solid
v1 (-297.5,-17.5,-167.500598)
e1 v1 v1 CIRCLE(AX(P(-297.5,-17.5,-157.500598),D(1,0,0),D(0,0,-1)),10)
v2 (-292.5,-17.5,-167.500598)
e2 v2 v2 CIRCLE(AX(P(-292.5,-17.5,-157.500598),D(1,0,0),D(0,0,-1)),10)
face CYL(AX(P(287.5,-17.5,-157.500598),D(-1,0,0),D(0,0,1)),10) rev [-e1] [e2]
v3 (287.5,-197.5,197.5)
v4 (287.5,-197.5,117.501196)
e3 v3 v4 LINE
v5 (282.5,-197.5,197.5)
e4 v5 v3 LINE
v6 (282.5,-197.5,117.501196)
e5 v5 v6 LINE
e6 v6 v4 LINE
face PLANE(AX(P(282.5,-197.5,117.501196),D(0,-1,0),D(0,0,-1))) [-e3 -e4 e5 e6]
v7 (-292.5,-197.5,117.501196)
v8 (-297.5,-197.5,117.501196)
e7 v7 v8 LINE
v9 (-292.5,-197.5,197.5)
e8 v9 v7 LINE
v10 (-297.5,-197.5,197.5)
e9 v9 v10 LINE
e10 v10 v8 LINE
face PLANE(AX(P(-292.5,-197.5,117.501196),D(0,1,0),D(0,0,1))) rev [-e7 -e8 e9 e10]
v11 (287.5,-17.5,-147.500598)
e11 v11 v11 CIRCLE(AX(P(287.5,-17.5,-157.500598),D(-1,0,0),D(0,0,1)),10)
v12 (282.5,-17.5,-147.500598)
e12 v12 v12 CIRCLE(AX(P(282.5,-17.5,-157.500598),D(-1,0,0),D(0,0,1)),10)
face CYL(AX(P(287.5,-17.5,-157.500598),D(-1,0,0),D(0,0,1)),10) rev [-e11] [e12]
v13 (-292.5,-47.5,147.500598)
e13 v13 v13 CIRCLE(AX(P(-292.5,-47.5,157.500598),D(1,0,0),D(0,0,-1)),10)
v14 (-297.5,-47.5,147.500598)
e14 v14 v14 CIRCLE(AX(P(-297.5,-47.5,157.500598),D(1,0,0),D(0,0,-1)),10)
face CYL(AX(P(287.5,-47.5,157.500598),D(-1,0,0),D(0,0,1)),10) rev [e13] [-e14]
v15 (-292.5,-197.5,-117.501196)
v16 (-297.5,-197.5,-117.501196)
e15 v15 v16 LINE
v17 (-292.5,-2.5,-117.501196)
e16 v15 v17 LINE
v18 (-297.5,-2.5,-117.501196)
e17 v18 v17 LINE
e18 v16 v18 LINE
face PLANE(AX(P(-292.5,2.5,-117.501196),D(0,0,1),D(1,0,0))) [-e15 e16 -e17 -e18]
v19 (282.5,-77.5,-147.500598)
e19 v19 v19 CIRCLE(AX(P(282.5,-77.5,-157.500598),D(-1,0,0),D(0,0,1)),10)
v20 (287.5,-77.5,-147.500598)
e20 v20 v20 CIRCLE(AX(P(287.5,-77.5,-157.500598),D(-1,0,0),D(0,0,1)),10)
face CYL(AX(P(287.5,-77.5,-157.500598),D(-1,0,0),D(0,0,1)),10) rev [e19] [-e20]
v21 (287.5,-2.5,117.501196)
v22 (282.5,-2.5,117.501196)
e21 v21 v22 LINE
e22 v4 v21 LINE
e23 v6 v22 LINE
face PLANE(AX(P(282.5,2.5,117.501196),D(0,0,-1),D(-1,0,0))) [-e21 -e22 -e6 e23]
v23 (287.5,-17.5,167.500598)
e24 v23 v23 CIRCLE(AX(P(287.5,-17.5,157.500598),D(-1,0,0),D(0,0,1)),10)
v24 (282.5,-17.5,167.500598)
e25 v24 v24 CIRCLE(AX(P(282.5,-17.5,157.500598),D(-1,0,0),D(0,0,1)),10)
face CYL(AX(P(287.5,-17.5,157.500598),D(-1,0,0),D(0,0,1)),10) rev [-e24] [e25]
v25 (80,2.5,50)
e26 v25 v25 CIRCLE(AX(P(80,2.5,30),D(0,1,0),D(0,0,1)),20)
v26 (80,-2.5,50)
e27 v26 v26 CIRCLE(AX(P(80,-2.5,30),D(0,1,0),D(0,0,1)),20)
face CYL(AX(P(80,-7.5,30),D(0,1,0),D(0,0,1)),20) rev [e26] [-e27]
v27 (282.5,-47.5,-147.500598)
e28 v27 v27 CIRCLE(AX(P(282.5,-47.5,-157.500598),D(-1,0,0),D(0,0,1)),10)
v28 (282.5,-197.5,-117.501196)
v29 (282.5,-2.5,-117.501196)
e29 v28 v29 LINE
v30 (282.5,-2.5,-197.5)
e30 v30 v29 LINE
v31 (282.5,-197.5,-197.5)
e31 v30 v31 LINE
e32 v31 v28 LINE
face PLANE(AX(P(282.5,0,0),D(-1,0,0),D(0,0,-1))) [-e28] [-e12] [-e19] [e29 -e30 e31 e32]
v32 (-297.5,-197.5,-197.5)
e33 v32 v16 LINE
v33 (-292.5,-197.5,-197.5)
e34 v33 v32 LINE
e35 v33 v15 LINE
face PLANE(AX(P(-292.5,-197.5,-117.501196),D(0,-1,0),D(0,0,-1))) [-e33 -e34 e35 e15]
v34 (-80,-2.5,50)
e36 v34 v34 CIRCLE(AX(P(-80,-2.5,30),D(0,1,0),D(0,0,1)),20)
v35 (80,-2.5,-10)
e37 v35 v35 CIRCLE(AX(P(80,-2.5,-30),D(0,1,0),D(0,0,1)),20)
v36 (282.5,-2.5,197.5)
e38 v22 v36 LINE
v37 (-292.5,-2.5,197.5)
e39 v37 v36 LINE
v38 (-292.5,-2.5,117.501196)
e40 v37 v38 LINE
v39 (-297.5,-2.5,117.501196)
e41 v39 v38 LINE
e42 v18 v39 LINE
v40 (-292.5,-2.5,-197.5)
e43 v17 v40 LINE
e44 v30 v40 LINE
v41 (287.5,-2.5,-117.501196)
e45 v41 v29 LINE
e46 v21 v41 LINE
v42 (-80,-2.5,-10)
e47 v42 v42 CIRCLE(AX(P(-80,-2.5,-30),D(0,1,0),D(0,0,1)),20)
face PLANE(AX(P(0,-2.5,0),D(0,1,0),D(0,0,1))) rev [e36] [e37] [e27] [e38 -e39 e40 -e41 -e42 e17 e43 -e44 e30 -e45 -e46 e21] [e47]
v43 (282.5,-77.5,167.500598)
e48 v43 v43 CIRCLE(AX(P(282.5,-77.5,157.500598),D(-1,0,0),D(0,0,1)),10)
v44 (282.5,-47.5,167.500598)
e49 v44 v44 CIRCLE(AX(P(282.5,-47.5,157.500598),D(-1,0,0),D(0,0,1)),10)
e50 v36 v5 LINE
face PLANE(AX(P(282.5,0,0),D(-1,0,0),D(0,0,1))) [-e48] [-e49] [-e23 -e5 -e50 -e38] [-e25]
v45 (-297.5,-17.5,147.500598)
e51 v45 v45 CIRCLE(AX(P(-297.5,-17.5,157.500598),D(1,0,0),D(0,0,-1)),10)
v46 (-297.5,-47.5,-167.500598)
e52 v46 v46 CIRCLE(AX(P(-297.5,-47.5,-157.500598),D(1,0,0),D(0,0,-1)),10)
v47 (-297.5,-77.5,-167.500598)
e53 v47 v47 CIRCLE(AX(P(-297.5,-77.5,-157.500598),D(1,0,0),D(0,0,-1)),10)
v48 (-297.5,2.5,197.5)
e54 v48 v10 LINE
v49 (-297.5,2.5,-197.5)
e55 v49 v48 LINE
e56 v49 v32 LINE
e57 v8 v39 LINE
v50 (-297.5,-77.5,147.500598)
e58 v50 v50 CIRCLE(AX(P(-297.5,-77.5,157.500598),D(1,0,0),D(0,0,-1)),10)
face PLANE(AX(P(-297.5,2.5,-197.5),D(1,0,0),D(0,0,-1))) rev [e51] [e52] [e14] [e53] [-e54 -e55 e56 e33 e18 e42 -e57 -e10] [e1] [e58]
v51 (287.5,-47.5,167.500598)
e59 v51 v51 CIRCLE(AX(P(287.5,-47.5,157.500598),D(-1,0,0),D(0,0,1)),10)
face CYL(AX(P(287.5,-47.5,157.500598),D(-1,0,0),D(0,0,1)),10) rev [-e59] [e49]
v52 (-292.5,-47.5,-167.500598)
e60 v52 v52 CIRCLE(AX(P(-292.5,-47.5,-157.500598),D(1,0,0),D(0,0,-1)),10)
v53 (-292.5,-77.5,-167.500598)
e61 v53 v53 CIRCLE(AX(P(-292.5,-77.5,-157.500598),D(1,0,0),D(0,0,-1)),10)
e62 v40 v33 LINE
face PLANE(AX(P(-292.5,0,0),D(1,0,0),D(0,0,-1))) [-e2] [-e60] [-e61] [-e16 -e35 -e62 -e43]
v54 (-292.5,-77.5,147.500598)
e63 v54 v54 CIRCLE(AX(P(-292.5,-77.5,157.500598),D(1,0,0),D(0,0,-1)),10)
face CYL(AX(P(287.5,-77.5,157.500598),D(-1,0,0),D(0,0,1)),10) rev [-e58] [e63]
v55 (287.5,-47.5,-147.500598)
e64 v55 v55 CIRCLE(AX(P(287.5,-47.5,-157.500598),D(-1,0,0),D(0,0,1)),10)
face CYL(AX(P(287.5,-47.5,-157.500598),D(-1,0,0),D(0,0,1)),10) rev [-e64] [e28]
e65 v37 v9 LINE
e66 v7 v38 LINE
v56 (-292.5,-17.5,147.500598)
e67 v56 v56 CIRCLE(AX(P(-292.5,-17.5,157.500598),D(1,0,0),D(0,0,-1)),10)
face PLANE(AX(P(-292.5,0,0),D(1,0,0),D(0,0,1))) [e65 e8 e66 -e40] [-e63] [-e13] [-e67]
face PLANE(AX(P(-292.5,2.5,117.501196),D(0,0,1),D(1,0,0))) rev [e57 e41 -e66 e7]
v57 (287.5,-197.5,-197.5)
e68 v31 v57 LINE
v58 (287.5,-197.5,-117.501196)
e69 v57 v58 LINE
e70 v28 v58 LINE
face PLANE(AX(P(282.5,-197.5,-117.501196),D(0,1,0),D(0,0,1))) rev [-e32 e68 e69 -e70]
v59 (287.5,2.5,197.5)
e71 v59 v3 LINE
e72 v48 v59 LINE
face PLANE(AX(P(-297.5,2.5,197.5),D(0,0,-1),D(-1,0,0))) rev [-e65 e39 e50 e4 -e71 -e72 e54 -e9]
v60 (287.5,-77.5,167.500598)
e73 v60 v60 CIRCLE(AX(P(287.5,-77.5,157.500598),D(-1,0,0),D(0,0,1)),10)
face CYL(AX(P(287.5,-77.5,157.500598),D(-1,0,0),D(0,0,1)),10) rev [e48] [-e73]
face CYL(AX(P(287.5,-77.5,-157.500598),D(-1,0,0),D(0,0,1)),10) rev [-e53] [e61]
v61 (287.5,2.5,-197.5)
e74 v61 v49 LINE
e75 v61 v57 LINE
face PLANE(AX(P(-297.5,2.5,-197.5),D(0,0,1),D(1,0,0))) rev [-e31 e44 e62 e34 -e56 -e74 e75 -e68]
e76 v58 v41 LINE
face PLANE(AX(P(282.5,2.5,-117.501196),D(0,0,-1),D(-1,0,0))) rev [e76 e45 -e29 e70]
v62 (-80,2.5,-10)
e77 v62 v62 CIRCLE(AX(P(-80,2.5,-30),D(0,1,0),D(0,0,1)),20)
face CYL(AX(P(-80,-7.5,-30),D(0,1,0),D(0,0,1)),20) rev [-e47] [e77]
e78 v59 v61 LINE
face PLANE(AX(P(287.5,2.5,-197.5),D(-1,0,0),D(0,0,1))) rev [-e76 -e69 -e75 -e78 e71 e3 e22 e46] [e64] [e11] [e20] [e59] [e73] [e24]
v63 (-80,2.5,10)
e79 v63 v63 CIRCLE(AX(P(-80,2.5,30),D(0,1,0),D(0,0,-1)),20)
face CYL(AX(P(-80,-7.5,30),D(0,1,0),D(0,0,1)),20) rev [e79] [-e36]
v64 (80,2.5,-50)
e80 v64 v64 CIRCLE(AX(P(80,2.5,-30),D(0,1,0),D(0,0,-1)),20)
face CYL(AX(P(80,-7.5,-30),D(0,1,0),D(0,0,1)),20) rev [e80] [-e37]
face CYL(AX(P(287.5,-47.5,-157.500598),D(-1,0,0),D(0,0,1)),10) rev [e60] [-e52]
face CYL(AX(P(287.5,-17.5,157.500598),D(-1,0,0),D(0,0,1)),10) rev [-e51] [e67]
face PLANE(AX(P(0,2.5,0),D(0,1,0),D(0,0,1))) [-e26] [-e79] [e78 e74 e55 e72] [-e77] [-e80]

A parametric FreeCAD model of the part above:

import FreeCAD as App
import Part
import Sketcher
from FreeCAD import Vector
Q = App.Units.Quantity


def add_polygon(sketch, points):
    """Adds a closed chain of lines whose ends are joined by coincident constraints."""
    first, n = sketch.GeometryCount, len(points)
    for a, b in zip(points, points[1:] + points[:1]):
        sketch.addGeometry(Part.LineSegment(App.Vector(*a, 0), App.Vector(*b, 0)), False)
    for i in range(n):
        sketch.addConstraint(Sketcher.Constraint("Coincident", first + i, 2, first + (i + 1) % n, 1))

doc = App.newDocument("Part")
params = doc.addObject("Spreadsheet::Sheet", "Params")
for row, (alias, value) in enumerate([
    ("sketch1_width", "585 mm"),
    ("sketch1_width2", "425 mm"),
    ("sketch1_height", "395 mm"),
    ("sketch1_height2", "235 mm"),
    ("pad1_length", "5 mm"),
    ("sketch2_width", "200 mm"),
    ("pad2_length", "5 mm"),
    ("sketch3_width", "200 mm"),
    ("pad3_length", "5 mm"),
    ("sketch4_diameter", "20 mm"),
    ("sketch5_width", "425 mm"),
    ("sketch5_height", "235 mm"),
    ("pad4_length", "5 mm"),
    ("sketch6_diameter", "40 mm"),
    ("pocket2_length", "10 mm"),
], start=1):
    params.set(f"A{row}", alias)
    params.set(f"B{row}", "=" + value)
    params.setAlias(f"B{row}", alias)

body = doc.addObject("PartDesign::Body", "Body")

sketch1 = body.newObject("Sketcher::SketchObject", "Sketch")
sketch1.AttachmentSupport = (doc.getObject("XZ_Plane"), [""])
sketch1.MapMode = "FlatFace"
add_polygon(sketch1, [(-297.5, -197.5), (-297.5, 197.5), (287.5, 197.5), (287.5, -197.5)])
add_polygon(sketch1, [(207.5, 117.5), (-217.5, 117.5), (-217.5, -117.5), (207.5, -117.5)])
sketch1.addConstraint(Sketcher.Constraint("Vertical", 0))
sketch1.addConstraint(Sketcher.Constraint("Horizontal", 1))
sketch1.addConstraint(Sketcher.Constraint("Vertical", 2))
sketch1.addConstraint(Sketcher.Constraint("Horizontal", 3))
sketch1.addConstraint(Sketcher.Constraint("Horizontal", 4))
sketch1.addConstraint(Sketcher.Constraint("Vertical", 5))
sketch1.addConstraint(Sketcher.Constraint("Horizontal", 6))
sketch1.addConstraint(Sketcher.Constraint("Vertical", 7))
sketch1.addConstraint(Sketcher.Constraint("DistanceX", 1, 1, 1, 2, Q("585 mm")))
sketch1.addConstraint(Sketcher.Constraint("DistanceX", 4, 2, 4, 1, Q("425 mm")))
sketch1.addConstraint(Sketcher.Constraint("DistanceY", 0, 1, 0, 2, Q("395 mm")))
sketch1.addConstraint(Sketcher.Constraint("DistanceY", 5, 2, 5, 1, Q("235 mm")))
sketch1.addConstraint(Sketcher.Constraint("DistanceX", 0, 2, 4, 2, Q("80 mm")))
sketch1.addConstraint(Sketcher.Constraint("DistanceY", 4, 2, 0, 2, Q("80 mm")))
sketch1.addConstraint(Sketcher.Constraint("DistanceX", 0, 2, -1, 1, Q("297.5 mm")))
sketch1.addConstraint(Sketcher.Constraint("DistanceY", -1, 1, 0, 2, Q("197.5 mm")))
sketch1.setExpression("Constraints[16]", "Params.sketch1_width")
sketch1.setExpression("Constraints[17]", "Params.sketch1_width2")
sketch1.setExpression("Constraints[18]", "Params.sketch1_height")
sketch1.setExpression("Constraints[19]", "Params.sketch1_height2")
pad1 = body.newObject("PartDesign::Pad", "Pad")
pad1.Profile = sketch1
pad1.setExpression("Length", "Params.pad1_length")
pad1.Midplane = True

sketch2 = body.newObject("Sketcher::SketchObject", "Sketch001")
sketch2.AttachmentSupport = (doc.getObject("YZ_Plane"), [""])
sketch2.MapMode = "FlatFace"
sketch2.AttachmentOffset = App.Placement(Vector(0, 0, -297.5), App.Rotation())
add_polygon(sketch2, [(2.5, -197.5), (-197.5, -197.5), (-197.5, -117.501196), (2.5, -117.501196)])
sketch2.addConstraint(Sketcher.Constraint("Horizontal", 0))
sketch2.addConstraint(Sketcher.Constraint("Vertical", 1))
sketch2.addConstraint(Sketcher.Constraint("Horizontal", 2))
sketch2.addConstraint(Sketcher.Constraint("Vertical", 3))
sketch2.addConstraint(Sketcher.Constraint("DistanceX", 0, 2, 0, 1, Q("200 mm")))
sketch2.addConstraint(Sketcher.Constraint("DistanceX", 0, 2, -1, 1, Q("197.5 mm")))
sketch2.addConstraint(Sketcher.Constraint("DistanceY", 0, 2, -1, 1, Q("197.5 mm")))
sketch2.addConstraint(Sketcher.Constraint("DistanceY", 1, 1, 1, 2, Q("79.998804 mm")))
sketch2.setExpression("Constraints[8]", "Params.sketch2_width")
pad2 = body.newObject("PartDesign::Pad", "Pad001")
pad2.Profile = sketch2
pad2.setExpression("Length", "Params.pad2_length")
doc.recompute()

mirrored = body.newObject("PartDesign::Mirrored", "Mirrored")
mirrored.Originals = [pad2]
mirrored.MirrorPlane = (doc.getObject("XY_Plane"), [""])
body.Tip = mirrored
doc.recompute()

datumplane = body.newObject("PartDesign::Plane", "DatumPlane")
datumplane.AttachmentSupport = (doc.getObject("YZ_Plane"), [""])
datumplane.MapMode = "FlatFace"
datumplane.AttachmentOffset = App.Placement(Vector(0, 0, -5), App.Rotation())
mirrored2 = body.newObject("PartDesign::Mirrored", "Mirrored001")
mirrored2.Originals = [pad2]
mirrored2.MirrorPlane = (datumplane, [""])
body.Tip = mirrored2

sketch3 = body.newObject("Sketcher::SketchObject", "Sketch002")
sketch3.AttachmentSupport = (doc.getObject("YZ_Plane"), [""])
sketch3.MapMode = "FlatFace"
sketch3.AttachmentOffset = App.Placement(Vector(0, 0, 287.5), App.Rotation())
add_polygon(sketch3, [(2.5, 197.5), (-197.5, 197.5), (-197.5, 117.501196), (2.5, 117.501196)])
sketch3.addConstraint(Sketcher.Constraint("Horizontal", 0))
sketch3.addConstraint(Sketcher.Constraint("Vertical", 1))
sketch3.addConstraint(Sketcher.Constraint("Horizontal", 2))
sketch3.addConstraint(Sketcher.Constraint("Vertical", 3))
sketch3.addConstraint(Sketcher.Constraint("DistanceX", 0, 2, 0, 1, Q("200 mm")))
sketch3.addConstraint(Sketcher.Constraint("DistanceX", 0, 2, -1, 1, Q("197.5 mm")))
sketch3.addConstraint(Sketcher.Constraint("DistanceY", -1, 1, 0, 2, Q("197.5 mm")))
sketch3.addConstraint(Sketcher.Constraint("DistanceY", 1, 2, 1, 1, Q("79.998804 mm")))
sketch3.setExpression("Constraints[8]", "Params.sketch3_width")
pad3 = body.newObject("PartDesign::Pad", "Pad002")
pad3.Profile = sketch3
pad3.setExpression("Length", "Params.pad3_length")
pad3.Reversed = True

sketch4 = body.newObject("Sketcher::SketchObject", "Sketch003")
sketch4.AttachmentSupport = (doc.getObject("YZ_Plane"), [""])
sketch4.MapMode = "FlatFace"
sketch4.AttachmentOffset = App.Placement(Vector(0, 0, -297.5), App.Rotation())
sketch4.addGeometry(Part.Circle(Vector(-17.5, -157.500598, 0), Vector(0, 0, 1), 10), False)
sketch4.addGeometry(Part.Circle(Vector(-47.5, -157.500598, 0), Vector(0, 0, 1), 10), False)
sketch4.addGeometry(Part.Circle(Vector(-77.5, -157.500598, 0), Vector(0, 0, 1), 10), False)
sketch4.addGeometry(Part.Circle(Vector(-17.5, 157.500598, 0), Vector(0, 0, 1), 10), False)
sketch4.addGeometry(Part.Circle(Vector(-47.5, 157.500598, 0), Vector(0, 0, 1), 10), False)
sketch4.addGeometry(Part.Circle(Vector(-77.5, 157.500598, 0), Vector(0, 0, 1), 10), False)
sketch4.addConstraint(Sketcher.Constraint("Equal", 0, 1))
sketch4.addConstraint(Sketcher.Constraint("Equal", 1, 2))
sketch4.addConstraint(Sketcher.Constraint("Equal", 2, 3))
sketch4.addConstraint(Sketcher.Constraint("Equal", 3, 4))
sketch4.addConstraint(Sketcher.Constraint("Equal", 4, 5))
sketch4.addConstraint(Sketcher.Constraint("Symmetric", 0, 3, 3, 3, -1))
sketch4.addConstraint(Sketcher.Constraint("Symmetric", 1, 3, 4, 3, -1))
sketch4.addConstraint(Sketcher.Constraint("Symmetric", 2, 3, 5, 3, -1))
sketch4.addConstraint(Sketcher.Constraint("Horizontal", 0, 3, 1, 3))
sketch4.addConstraint(Sketcher.Constraint("Horizontal", 1, 3, 2, 3))
sketch4.addConstraint(Sketcher.Constraint("Diameter", 0, Q("20 mm")))
sketch4.addConstraint(Sketcher.Constraint("DistanceX", 1, 3, 0, 3, Q("30 mm")))
sketch4.addConstraint(Sketcher.Constraint("DistanceX", 2, 3, 1, 3, Q("30 mm")))
sketch4.addConstraint(Sketcher.Constraint("DistanceX", 0, 3, -1, 1, Q("17.5 mm")))
sketch4.addConstraint(Sketcher.Constraint("DistanceY", 0, 3, -1, 1, Q("157.500598 mm")))
sketch4.setExpression("Constraints[10]", "Params.sketch4_diameter")
pocket1 = body.newObject("PartDesign::Pocket", "Pocket")
pocket1.Profile = sketch4
pocket1.Type = "ThroughAll"
pocket1.Midplane = True

sketch5 = body.newObject("Sketcher::SketchObject", "Sketch004")
sketch5.AttachmentSupport = (doc.getObject("XZ_Plane"), [""])
sketch5.MapMode = "FlatFace"
sketch5.AttachmentOffset = App.Placement(Vector(0, 0, -2.5), App.Rotation())
add_polygon(sketch5, [(-217.5, -117.5), (-217.5, 117.5), (207.5, 117.5), (207.5, -117.5)])
sketch5.addConstraint(Sketcher.Constraint("Vertical", 0))
sketch5.addConstraint(Sketcher.Constraint("Horizontal", 1))
sketch5.addConstraint(Sketcher.Constraint("Vertical", 2))
sketch5.addConstraint(Sketcher.Constraint("Horizontal", 3))
sketch5.addConstraint(Sketcher.Constraint("DistanceX", 1, 1, 1, 2, Q("425 mm")))
sketch5.addConstraint(Sketcher.Constraint("DistanceY", 0, 1, 0, 2, Q("235 mm")))
sketch5.addConstraint(Sketcher.Constraint("DistanceX", 0, 2, -1, 1, Q("217.5 mm")))
sketch5.addConstraint(Sketcher.Constraint("DistanceY", -1, 1, 0, 2, Q("117.5 mm")))
sketch5.setExpression("Constraints[8]", "Params.sketch5_width")
sketch5.setExpression("Constraints[9]", "Params.sketch5_height")
pad4 = body.newObject("PartDesign::Pad", "Pad003")
pad4.Profile = sketch5
pad4.setExpression("Length", "Params.pad4_length")

sketch6 = body.newObject("Sketcher::SketchObject", "Sketch005")
sketch6.AttachmentSupport = (doc.getObject("XZ_Plane"), [""])
sketch6.MapMode = "FlatFace"
sketch6.AttachmentOffset = App.Placement(Vector(0, 0, -2.5), App.Rotation())
sketch6.addGeometry(Part.Circle(Vector(-80, -30, 0), Vector(0, 0, 1), 20), False)
sketch6.addGeometry(Part.Circle(Vector(80, -30, 0), Vector(0, 0, 1), 20), False)
sketch6.addGeometry(Part.Circle(Vector(80, 30, 0), Vector(0, 0, 1), 20), False)
sketch6.addGeometry(Part.Circle(Vector(-80, 30, 0), Vector(0, 0, 1), 20), False)
sketch6.addConstraint(Sketcher.Constraint("Equal", 0, 1))
sketch6.addConstraint(Sketcher.Constraint("Equal", 1, 2))
sketch6.addConstraint(Sketcher.Constraint("Equal", 2, 3))
sketch6.addConstraint(Sketcher.Constraint("Symmetric", 0, 3, 2, 3, -1, 1))
sketch6.addConstraint(Sketcher.Constraint("Symmetric", 1, 3, 3, 3, -1, 1))
sketch6.addConstraint(Sketcher.Constraint("Symmetric", 0, 3, 1, 3, -2))
sketch6.addConstraint(Sketcher.Constraint("Diameter", 0, Q("40 mm")))
sketch6.addConstraint(Sketcher.Constraint("DistanceX", 0, 3, -1, 1, Q("80 mm")))
sketch6.addConstraint(Sketcher.Constraint("DistanceY", 0, 3, -1, 1, Q("30 mm")))
sketch6.setExpression("Constraints[6]", "Params.sketch6_diameter")
pocket2 = body.newObject("PartDesign::Pocket", "Pocket001")
pocket2.Profile = sketch6
pocket2.setExpression("Length", "Params.pocket2_length")
pocket2.Reversed = True

doc.recompute()
